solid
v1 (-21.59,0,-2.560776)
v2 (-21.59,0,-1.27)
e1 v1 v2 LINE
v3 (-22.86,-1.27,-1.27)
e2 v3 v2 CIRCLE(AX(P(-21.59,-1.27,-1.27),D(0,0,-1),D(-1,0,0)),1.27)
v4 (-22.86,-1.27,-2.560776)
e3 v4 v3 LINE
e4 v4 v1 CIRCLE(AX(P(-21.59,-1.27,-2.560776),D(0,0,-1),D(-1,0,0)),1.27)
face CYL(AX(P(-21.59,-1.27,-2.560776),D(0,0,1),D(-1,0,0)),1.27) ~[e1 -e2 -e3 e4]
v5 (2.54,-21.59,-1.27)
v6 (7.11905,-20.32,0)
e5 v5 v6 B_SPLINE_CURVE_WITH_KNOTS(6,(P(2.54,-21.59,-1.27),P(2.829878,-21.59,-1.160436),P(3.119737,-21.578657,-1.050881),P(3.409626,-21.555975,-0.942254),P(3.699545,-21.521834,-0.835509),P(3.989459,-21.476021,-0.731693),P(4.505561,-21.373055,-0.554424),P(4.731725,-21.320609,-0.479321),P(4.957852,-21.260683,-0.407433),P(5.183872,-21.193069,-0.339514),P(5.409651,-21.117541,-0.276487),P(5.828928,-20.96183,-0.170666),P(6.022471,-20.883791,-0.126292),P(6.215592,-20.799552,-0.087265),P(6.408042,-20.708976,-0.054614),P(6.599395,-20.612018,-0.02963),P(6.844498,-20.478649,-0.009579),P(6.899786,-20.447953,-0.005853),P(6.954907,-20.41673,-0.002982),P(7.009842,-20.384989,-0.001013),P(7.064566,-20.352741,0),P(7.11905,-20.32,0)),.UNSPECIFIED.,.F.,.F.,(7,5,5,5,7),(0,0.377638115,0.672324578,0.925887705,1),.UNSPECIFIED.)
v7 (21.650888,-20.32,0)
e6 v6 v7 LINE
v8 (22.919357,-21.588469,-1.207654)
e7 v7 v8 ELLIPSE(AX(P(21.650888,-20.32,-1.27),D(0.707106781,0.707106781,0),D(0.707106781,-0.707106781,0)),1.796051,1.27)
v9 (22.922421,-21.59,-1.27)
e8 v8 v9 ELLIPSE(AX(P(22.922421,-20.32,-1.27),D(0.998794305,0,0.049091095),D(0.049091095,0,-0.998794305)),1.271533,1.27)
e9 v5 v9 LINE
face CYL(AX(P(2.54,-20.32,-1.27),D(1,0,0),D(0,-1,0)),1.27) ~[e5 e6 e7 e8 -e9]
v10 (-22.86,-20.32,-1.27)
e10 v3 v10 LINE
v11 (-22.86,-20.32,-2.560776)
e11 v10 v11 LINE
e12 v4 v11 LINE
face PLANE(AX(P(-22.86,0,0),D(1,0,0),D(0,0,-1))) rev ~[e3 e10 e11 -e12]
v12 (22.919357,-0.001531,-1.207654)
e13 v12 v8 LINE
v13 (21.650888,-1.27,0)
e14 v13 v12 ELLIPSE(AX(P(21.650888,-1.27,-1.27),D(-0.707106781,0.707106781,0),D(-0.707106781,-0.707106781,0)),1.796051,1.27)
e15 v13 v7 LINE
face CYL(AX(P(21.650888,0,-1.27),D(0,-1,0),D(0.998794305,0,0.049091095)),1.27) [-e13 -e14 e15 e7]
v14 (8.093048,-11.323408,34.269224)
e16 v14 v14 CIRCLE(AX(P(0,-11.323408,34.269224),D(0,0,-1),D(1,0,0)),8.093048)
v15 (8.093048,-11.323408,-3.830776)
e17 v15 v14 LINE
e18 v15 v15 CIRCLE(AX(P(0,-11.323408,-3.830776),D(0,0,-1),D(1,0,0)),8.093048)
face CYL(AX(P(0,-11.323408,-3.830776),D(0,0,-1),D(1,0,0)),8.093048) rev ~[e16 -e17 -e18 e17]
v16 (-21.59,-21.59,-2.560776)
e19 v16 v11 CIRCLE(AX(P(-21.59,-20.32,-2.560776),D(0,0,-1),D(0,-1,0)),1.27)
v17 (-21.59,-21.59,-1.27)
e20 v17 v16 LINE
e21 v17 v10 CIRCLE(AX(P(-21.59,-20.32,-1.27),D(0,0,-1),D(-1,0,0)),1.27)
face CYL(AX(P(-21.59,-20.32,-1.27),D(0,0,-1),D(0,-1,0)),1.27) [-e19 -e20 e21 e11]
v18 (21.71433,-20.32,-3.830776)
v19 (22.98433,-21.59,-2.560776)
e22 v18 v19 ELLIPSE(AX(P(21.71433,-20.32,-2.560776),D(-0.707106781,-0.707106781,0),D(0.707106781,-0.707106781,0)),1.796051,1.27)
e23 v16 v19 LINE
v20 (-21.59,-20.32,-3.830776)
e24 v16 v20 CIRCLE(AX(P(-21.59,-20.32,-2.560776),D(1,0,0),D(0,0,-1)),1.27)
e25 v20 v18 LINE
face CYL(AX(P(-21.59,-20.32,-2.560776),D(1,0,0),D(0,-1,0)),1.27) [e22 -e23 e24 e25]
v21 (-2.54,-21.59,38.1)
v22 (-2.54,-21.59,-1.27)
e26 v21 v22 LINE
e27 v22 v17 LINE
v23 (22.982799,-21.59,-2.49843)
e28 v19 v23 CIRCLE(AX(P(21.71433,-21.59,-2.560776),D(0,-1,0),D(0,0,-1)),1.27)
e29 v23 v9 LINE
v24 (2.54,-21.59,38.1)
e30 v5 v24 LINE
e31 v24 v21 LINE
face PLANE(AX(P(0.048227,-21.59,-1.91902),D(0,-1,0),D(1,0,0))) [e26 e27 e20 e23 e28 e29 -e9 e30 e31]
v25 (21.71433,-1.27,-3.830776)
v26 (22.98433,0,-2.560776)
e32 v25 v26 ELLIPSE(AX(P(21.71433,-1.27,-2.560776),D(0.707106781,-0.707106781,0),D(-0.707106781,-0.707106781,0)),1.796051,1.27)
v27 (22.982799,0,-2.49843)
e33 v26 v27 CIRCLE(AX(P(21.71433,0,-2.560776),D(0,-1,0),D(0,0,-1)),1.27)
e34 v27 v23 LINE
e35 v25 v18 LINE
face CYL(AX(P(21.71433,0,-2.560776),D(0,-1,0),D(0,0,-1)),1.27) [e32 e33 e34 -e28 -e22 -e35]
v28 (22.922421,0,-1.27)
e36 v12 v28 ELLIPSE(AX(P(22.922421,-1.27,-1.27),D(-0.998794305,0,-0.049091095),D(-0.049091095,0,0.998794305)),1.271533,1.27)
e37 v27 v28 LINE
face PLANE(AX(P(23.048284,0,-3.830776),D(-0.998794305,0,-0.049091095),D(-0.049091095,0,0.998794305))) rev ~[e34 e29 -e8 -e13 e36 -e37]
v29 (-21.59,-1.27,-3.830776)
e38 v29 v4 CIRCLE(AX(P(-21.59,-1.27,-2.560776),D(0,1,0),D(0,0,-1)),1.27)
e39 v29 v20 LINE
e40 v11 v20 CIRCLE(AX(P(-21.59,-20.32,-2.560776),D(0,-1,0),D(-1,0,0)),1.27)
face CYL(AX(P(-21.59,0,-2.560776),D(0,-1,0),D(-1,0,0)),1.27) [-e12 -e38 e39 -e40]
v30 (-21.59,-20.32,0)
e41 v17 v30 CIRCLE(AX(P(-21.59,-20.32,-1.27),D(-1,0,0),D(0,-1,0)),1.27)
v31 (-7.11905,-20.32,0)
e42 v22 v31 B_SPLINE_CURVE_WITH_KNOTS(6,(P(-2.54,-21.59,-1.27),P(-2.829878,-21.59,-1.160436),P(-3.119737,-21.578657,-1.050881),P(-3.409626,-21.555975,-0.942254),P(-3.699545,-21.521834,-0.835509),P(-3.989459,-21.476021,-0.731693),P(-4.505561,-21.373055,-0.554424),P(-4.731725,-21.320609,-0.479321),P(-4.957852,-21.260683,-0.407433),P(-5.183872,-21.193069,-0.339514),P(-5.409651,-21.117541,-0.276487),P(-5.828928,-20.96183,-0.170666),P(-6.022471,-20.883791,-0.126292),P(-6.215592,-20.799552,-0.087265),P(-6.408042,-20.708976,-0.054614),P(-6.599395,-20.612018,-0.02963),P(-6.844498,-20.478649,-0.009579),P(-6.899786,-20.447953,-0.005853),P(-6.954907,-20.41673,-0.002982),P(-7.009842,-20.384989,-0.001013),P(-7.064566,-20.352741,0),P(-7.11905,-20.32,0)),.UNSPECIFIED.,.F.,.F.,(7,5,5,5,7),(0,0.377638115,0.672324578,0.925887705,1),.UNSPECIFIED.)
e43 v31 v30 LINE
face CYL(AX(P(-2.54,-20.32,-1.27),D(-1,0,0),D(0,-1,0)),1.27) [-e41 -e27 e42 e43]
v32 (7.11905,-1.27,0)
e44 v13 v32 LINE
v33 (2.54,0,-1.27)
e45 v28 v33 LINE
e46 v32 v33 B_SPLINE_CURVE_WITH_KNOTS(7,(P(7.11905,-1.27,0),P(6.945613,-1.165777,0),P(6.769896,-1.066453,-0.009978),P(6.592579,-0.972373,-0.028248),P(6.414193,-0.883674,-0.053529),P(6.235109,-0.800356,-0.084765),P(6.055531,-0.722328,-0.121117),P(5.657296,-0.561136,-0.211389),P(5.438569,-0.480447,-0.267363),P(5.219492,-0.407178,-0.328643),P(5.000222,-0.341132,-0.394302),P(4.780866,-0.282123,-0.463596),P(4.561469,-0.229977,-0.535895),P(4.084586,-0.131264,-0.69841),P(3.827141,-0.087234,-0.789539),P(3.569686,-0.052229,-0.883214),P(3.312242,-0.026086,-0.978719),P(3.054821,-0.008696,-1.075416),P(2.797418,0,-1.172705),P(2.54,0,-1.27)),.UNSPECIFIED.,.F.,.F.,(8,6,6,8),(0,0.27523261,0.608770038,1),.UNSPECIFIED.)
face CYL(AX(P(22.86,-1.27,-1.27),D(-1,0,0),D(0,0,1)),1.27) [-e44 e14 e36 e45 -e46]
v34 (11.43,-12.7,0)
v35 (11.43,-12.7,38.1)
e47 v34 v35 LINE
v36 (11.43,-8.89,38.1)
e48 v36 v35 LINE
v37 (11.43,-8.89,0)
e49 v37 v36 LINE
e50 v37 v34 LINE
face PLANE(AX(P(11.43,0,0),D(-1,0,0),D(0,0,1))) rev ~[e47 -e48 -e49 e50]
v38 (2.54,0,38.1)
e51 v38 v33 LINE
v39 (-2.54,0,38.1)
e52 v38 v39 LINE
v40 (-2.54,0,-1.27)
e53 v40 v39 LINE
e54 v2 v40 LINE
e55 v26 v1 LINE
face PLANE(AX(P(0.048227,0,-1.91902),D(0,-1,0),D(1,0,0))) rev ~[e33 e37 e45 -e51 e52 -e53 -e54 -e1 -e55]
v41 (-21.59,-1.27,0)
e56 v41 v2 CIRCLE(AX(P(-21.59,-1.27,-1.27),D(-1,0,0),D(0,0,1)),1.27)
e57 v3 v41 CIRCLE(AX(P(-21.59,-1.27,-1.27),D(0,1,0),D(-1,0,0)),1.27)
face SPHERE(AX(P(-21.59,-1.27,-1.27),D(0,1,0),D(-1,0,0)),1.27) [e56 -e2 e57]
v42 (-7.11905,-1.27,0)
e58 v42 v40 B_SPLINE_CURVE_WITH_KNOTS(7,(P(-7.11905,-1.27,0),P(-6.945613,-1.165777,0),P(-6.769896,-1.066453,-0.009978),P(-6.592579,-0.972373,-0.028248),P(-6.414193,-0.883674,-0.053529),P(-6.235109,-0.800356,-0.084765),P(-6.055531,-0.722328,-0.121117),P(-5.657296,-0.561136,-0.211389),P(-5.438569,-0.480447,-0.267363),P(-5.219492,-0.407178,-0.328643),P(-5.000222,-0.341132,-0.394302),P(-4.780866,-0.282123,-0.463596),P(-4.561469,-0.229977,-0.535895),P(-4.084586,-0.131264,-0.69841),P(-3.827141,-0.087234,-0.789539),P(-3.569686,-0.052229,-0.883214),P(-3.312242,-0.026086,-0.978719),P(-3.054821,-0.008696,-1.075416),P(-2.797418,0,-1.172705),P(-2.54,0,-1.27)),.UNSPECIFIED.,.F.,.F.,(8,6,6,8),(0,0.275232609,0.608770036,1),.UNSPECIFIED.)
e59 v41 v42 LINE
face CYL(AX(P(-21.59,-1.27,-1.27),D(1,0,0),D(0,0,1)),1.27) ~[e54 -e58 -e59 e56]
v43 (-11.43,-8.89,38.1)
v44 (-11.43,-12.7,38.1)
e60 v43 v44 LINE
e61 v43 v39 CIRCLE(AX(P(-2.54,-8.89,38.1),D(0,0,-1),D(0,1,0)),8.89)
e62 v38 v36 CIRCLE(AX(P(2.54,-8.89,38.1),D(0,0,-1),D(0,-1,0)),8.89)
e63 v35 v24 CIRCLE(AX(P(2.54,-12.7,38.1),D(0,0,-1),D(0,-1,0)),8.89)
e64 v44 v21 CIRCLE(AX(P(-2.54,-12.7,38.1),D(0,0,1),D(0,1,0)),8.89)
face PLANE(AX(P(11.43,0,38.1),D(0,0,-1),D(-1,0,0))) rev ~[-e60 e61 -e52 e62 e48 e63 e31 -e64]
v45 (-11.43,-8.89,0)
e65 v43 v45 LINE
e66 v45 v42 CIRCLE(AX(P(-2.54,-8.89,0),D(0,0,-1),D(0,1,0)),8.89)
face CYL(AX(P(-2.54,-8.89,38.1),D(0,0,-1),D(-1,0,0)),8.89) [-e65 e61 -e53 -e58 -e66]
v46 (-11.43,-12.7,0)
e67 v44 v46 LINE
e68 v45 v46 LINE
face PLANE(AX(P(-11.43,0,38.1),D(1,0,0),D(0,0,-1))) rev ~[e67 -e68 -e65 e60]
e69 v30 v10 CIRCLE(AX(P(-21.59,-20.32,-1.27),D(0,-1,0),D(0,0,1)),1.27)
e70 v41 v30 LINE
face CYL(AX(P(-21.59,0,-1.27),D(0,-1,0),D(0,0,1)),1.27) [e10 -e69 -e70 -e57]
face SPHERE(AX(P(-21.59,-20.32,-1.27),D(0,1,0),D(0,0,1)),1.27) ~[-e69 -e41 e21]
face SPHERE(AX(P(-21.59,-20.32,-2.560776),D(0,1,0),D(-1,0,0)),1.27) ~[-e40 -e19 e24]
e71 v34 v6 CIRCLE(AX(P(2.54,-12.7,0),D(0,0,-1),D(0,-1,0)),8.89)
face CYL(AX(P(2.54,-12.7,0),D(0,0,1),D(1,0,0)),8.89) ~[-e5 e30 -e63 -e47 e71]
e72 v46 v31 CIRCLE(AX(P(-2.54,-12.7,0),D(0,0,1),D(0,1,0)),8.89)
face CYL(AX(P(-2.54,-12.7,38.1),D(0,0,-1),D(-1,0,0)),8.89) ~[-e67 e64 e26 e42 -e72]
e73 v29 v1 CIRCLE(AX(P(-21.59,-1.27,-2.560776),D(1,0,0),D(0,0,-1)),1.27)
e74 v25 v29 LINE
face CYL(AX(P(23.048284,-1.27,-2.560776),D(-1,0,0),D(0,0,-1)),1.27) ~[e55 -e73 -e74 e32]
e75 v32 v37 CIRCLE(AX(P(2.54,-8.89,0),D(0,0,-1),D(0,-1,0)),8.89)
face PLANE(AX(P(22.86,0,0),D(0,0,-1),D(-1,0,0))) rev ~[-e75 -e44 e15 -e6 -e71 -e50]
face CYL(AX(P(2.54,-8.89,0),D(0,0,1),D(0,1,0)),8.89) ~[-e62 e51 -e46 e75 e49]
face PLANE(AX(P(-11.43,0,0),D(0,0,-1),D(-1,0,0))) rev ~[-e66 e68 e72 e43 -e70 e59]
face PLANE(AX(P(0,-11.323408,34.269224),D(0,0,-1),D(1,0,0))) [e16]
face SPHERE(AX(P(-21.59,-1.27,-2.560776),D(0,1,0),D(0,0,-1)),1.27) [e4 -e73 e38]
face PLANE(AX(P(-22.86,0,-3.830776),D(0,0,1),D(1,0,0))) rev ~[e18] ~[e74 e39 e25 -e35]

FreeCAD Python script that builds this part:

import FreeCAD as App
import Part
import Sketcher
Q = App.Units.Quantity


def edges_at(feature, points):
    """Names of the edges that pass closest to the given points."""
    edges = feature.Shape.Edges
    near = lambda p: min(range(len(edges)), key=lambda i: edges[i].distToShape(Part.Vertex(*p))[0])
    return sorted({f"Edge{near(p) + 1}" for p in points})


def add_polygon(sketch, points):
    """Adds a closed chain of lines whose ends are joined by coincident constraints."""
    first, n = sketch.GeometryCount, len(points)
    for a, b in zip(points, points[1:] + points[:1]):
        sketch.addGeometry(Part.LineSegment(App.Vector(*a, 0), App.Vector(*b, 0)), False)
    for i in range(n):
        sketch.addConstraint(Sketcher.Constraint("Coincident", first + i, 2, first + (i + 1) % n, 1))

doc = App.newDocument("Part")
body = doc.addObject("PartDesign::Body", "Body")

# Sketch on XZ plane
sketch1 = body.newObject("Sketcher::SketchObject", "Sketch")
sketch1.AttachmentSupport = (doc.getObject("XZ_Plane"), [""])
sketch1.MapMode = "FlatFace"
add_polygon(sketch1, [(-22.9, 0), (-22.9, -3.8), (23, -3.8), (22.9, 0), (11.4, 0), (11.4, 38.1), (-11.4, 38.1), (-11.4, 0)])  # lines 0-7
sketch1.addConstraint(Sketcher.Constraint("Vertical", 0))
sketch1.addConstraint(Sketcher.Constraint("Horizontal", 1))
sketch1.addConstraint(Sketcher.Constraint("Horizontal", 3))
sketch1.addConstraint(Sketcher.Constraint("Vertical", 4))
sketch1.addConstraint(Sketcher.Constraint("Horizontal", 5))
sketch1.addConstraint(Sketcher.Constraint("Vertical", 6))
sketch1.addConstraint(Sketcher.Constraint("Horizontal", 7))
sketch1.addConstraint(Sketcher.Constraint("Symmetric", 3, 2, 6, 2, -1, 1))
sketch1.addConstraint(Sketcher.Constraint("Symmetric", 2, 2, 7, 2, -2))
sketch1.addConstraint(Sketcher.Constraint("DistanceX", 5, 2, 5, 1, Q("0.9 in")))
sketch1.addConstraint(Sketcher.Constraint("DistanceY", 4, 1, 4, 2, Q("1.5 in")))
sketch1.addConstraint(Sketcher.Constraint("DistanceX", 3, 2, 3, 1, Q("0.45 in")))
sketch1.addConstraint(Sketcher.Constraint("Distance", 2, Q("0.151 in")))
sketch1.addConstraint(Sketcher.Constraint("DistanceX", 1, 1, 1, 2, Q("45.908284 mm")))
pad1 = body.newObject("PartDesign::Pad", "Pad")
pad1.Profile = sketch1
pad1.Length = Q("0.85 in")
doc.recompute()

fillet = body.newObject("PartDesign::Fillet", "Fillet")
fillet.Base = (pad1, edges_at(pad1, [(11.43, -21.59, 19.05)]))
fillet.Radius = Q("0.35 in")
doc.recompute()

fillet2 = body.newObject("PartDesign::Fillet", "Fillet001")
fillet2.Base = (fillet, edges_at(fillet, [(-11.43, -21.59, 19.05), (11.43, 0, 19.05), (-11.43, 0, 19.05)]))
fillet2.Radius = Q("0.35 in")
doc.recompute()

fillet3 = body.newObject("PartDesign::Fillet", "Fillet002")
fillet3.Base = (fillet2, edges_at(fillet2, [(-22.86, -10.795, 0)]))
fillet3.Radius = Q("0.05 in")
doc.recompute()

fillet4 = body.newObject("PartDesign::Fillet", "Fillet003")
fillet4.Base = (fillet3, edges_at(fillet3, [(-22.86, -10.795, -3.831)]))
fillet4.Radius = Q("0.05 in")
doc.recompute()

fillet5 = body.newObject("PartDesign::Fillet", "Fillet004")
fillet5.Base = (fillet4, edges_at(fillet4, [
    (-12.065, 0, 0),
    (0.729, 0, -3.831),
    (12.7, 0, 0),
    (22.86, -10.795, 0),
    (23.048, -10.795, -3.831),
    (12.7, -21.59, 0),
    (0.729, -21.59, -3.831),
    (-12.065, -21.59, 0),
]))
fillet5.Radius = Q("0.05 in")

# Sketch on XY plane
sketch2 = body.newObject("Sketcher::SketchObject", "Sketch001")
sketch2.AttachmentSupport = (doc.getObject("XY_Plane"), [""])
sketch2.MapMode = "FlatFace"
sketch2.AttachmentOffset = App.Placement(App.Vector(0, 0, -3.830776), App.Rotation())
sketch2.addGeometry(Part.Circle(App.Vector(0, -11, 0), App.Vector(0, 0, 1), 8), False)
sketch2.addConstraint(Sketcher.Constraint("PointOnObject", 0, 3, -2))
sketch2.addConstraint(Sketcher.Constraint("Diameter", 0, Q("16.186096 mm")))
sketch2.addConstraint(Sketcher.Constraint("DistanceY", 0, 3, -1, 1, Q("11.323408 mm")))
pocket1 = body.newObject("PartDesign::Pocket", "Pocket")
pocket1.Profile = sketch2
pocket1.Length = Q("1.5 in")
pocket1.Reversed = True

doc.recompute()
